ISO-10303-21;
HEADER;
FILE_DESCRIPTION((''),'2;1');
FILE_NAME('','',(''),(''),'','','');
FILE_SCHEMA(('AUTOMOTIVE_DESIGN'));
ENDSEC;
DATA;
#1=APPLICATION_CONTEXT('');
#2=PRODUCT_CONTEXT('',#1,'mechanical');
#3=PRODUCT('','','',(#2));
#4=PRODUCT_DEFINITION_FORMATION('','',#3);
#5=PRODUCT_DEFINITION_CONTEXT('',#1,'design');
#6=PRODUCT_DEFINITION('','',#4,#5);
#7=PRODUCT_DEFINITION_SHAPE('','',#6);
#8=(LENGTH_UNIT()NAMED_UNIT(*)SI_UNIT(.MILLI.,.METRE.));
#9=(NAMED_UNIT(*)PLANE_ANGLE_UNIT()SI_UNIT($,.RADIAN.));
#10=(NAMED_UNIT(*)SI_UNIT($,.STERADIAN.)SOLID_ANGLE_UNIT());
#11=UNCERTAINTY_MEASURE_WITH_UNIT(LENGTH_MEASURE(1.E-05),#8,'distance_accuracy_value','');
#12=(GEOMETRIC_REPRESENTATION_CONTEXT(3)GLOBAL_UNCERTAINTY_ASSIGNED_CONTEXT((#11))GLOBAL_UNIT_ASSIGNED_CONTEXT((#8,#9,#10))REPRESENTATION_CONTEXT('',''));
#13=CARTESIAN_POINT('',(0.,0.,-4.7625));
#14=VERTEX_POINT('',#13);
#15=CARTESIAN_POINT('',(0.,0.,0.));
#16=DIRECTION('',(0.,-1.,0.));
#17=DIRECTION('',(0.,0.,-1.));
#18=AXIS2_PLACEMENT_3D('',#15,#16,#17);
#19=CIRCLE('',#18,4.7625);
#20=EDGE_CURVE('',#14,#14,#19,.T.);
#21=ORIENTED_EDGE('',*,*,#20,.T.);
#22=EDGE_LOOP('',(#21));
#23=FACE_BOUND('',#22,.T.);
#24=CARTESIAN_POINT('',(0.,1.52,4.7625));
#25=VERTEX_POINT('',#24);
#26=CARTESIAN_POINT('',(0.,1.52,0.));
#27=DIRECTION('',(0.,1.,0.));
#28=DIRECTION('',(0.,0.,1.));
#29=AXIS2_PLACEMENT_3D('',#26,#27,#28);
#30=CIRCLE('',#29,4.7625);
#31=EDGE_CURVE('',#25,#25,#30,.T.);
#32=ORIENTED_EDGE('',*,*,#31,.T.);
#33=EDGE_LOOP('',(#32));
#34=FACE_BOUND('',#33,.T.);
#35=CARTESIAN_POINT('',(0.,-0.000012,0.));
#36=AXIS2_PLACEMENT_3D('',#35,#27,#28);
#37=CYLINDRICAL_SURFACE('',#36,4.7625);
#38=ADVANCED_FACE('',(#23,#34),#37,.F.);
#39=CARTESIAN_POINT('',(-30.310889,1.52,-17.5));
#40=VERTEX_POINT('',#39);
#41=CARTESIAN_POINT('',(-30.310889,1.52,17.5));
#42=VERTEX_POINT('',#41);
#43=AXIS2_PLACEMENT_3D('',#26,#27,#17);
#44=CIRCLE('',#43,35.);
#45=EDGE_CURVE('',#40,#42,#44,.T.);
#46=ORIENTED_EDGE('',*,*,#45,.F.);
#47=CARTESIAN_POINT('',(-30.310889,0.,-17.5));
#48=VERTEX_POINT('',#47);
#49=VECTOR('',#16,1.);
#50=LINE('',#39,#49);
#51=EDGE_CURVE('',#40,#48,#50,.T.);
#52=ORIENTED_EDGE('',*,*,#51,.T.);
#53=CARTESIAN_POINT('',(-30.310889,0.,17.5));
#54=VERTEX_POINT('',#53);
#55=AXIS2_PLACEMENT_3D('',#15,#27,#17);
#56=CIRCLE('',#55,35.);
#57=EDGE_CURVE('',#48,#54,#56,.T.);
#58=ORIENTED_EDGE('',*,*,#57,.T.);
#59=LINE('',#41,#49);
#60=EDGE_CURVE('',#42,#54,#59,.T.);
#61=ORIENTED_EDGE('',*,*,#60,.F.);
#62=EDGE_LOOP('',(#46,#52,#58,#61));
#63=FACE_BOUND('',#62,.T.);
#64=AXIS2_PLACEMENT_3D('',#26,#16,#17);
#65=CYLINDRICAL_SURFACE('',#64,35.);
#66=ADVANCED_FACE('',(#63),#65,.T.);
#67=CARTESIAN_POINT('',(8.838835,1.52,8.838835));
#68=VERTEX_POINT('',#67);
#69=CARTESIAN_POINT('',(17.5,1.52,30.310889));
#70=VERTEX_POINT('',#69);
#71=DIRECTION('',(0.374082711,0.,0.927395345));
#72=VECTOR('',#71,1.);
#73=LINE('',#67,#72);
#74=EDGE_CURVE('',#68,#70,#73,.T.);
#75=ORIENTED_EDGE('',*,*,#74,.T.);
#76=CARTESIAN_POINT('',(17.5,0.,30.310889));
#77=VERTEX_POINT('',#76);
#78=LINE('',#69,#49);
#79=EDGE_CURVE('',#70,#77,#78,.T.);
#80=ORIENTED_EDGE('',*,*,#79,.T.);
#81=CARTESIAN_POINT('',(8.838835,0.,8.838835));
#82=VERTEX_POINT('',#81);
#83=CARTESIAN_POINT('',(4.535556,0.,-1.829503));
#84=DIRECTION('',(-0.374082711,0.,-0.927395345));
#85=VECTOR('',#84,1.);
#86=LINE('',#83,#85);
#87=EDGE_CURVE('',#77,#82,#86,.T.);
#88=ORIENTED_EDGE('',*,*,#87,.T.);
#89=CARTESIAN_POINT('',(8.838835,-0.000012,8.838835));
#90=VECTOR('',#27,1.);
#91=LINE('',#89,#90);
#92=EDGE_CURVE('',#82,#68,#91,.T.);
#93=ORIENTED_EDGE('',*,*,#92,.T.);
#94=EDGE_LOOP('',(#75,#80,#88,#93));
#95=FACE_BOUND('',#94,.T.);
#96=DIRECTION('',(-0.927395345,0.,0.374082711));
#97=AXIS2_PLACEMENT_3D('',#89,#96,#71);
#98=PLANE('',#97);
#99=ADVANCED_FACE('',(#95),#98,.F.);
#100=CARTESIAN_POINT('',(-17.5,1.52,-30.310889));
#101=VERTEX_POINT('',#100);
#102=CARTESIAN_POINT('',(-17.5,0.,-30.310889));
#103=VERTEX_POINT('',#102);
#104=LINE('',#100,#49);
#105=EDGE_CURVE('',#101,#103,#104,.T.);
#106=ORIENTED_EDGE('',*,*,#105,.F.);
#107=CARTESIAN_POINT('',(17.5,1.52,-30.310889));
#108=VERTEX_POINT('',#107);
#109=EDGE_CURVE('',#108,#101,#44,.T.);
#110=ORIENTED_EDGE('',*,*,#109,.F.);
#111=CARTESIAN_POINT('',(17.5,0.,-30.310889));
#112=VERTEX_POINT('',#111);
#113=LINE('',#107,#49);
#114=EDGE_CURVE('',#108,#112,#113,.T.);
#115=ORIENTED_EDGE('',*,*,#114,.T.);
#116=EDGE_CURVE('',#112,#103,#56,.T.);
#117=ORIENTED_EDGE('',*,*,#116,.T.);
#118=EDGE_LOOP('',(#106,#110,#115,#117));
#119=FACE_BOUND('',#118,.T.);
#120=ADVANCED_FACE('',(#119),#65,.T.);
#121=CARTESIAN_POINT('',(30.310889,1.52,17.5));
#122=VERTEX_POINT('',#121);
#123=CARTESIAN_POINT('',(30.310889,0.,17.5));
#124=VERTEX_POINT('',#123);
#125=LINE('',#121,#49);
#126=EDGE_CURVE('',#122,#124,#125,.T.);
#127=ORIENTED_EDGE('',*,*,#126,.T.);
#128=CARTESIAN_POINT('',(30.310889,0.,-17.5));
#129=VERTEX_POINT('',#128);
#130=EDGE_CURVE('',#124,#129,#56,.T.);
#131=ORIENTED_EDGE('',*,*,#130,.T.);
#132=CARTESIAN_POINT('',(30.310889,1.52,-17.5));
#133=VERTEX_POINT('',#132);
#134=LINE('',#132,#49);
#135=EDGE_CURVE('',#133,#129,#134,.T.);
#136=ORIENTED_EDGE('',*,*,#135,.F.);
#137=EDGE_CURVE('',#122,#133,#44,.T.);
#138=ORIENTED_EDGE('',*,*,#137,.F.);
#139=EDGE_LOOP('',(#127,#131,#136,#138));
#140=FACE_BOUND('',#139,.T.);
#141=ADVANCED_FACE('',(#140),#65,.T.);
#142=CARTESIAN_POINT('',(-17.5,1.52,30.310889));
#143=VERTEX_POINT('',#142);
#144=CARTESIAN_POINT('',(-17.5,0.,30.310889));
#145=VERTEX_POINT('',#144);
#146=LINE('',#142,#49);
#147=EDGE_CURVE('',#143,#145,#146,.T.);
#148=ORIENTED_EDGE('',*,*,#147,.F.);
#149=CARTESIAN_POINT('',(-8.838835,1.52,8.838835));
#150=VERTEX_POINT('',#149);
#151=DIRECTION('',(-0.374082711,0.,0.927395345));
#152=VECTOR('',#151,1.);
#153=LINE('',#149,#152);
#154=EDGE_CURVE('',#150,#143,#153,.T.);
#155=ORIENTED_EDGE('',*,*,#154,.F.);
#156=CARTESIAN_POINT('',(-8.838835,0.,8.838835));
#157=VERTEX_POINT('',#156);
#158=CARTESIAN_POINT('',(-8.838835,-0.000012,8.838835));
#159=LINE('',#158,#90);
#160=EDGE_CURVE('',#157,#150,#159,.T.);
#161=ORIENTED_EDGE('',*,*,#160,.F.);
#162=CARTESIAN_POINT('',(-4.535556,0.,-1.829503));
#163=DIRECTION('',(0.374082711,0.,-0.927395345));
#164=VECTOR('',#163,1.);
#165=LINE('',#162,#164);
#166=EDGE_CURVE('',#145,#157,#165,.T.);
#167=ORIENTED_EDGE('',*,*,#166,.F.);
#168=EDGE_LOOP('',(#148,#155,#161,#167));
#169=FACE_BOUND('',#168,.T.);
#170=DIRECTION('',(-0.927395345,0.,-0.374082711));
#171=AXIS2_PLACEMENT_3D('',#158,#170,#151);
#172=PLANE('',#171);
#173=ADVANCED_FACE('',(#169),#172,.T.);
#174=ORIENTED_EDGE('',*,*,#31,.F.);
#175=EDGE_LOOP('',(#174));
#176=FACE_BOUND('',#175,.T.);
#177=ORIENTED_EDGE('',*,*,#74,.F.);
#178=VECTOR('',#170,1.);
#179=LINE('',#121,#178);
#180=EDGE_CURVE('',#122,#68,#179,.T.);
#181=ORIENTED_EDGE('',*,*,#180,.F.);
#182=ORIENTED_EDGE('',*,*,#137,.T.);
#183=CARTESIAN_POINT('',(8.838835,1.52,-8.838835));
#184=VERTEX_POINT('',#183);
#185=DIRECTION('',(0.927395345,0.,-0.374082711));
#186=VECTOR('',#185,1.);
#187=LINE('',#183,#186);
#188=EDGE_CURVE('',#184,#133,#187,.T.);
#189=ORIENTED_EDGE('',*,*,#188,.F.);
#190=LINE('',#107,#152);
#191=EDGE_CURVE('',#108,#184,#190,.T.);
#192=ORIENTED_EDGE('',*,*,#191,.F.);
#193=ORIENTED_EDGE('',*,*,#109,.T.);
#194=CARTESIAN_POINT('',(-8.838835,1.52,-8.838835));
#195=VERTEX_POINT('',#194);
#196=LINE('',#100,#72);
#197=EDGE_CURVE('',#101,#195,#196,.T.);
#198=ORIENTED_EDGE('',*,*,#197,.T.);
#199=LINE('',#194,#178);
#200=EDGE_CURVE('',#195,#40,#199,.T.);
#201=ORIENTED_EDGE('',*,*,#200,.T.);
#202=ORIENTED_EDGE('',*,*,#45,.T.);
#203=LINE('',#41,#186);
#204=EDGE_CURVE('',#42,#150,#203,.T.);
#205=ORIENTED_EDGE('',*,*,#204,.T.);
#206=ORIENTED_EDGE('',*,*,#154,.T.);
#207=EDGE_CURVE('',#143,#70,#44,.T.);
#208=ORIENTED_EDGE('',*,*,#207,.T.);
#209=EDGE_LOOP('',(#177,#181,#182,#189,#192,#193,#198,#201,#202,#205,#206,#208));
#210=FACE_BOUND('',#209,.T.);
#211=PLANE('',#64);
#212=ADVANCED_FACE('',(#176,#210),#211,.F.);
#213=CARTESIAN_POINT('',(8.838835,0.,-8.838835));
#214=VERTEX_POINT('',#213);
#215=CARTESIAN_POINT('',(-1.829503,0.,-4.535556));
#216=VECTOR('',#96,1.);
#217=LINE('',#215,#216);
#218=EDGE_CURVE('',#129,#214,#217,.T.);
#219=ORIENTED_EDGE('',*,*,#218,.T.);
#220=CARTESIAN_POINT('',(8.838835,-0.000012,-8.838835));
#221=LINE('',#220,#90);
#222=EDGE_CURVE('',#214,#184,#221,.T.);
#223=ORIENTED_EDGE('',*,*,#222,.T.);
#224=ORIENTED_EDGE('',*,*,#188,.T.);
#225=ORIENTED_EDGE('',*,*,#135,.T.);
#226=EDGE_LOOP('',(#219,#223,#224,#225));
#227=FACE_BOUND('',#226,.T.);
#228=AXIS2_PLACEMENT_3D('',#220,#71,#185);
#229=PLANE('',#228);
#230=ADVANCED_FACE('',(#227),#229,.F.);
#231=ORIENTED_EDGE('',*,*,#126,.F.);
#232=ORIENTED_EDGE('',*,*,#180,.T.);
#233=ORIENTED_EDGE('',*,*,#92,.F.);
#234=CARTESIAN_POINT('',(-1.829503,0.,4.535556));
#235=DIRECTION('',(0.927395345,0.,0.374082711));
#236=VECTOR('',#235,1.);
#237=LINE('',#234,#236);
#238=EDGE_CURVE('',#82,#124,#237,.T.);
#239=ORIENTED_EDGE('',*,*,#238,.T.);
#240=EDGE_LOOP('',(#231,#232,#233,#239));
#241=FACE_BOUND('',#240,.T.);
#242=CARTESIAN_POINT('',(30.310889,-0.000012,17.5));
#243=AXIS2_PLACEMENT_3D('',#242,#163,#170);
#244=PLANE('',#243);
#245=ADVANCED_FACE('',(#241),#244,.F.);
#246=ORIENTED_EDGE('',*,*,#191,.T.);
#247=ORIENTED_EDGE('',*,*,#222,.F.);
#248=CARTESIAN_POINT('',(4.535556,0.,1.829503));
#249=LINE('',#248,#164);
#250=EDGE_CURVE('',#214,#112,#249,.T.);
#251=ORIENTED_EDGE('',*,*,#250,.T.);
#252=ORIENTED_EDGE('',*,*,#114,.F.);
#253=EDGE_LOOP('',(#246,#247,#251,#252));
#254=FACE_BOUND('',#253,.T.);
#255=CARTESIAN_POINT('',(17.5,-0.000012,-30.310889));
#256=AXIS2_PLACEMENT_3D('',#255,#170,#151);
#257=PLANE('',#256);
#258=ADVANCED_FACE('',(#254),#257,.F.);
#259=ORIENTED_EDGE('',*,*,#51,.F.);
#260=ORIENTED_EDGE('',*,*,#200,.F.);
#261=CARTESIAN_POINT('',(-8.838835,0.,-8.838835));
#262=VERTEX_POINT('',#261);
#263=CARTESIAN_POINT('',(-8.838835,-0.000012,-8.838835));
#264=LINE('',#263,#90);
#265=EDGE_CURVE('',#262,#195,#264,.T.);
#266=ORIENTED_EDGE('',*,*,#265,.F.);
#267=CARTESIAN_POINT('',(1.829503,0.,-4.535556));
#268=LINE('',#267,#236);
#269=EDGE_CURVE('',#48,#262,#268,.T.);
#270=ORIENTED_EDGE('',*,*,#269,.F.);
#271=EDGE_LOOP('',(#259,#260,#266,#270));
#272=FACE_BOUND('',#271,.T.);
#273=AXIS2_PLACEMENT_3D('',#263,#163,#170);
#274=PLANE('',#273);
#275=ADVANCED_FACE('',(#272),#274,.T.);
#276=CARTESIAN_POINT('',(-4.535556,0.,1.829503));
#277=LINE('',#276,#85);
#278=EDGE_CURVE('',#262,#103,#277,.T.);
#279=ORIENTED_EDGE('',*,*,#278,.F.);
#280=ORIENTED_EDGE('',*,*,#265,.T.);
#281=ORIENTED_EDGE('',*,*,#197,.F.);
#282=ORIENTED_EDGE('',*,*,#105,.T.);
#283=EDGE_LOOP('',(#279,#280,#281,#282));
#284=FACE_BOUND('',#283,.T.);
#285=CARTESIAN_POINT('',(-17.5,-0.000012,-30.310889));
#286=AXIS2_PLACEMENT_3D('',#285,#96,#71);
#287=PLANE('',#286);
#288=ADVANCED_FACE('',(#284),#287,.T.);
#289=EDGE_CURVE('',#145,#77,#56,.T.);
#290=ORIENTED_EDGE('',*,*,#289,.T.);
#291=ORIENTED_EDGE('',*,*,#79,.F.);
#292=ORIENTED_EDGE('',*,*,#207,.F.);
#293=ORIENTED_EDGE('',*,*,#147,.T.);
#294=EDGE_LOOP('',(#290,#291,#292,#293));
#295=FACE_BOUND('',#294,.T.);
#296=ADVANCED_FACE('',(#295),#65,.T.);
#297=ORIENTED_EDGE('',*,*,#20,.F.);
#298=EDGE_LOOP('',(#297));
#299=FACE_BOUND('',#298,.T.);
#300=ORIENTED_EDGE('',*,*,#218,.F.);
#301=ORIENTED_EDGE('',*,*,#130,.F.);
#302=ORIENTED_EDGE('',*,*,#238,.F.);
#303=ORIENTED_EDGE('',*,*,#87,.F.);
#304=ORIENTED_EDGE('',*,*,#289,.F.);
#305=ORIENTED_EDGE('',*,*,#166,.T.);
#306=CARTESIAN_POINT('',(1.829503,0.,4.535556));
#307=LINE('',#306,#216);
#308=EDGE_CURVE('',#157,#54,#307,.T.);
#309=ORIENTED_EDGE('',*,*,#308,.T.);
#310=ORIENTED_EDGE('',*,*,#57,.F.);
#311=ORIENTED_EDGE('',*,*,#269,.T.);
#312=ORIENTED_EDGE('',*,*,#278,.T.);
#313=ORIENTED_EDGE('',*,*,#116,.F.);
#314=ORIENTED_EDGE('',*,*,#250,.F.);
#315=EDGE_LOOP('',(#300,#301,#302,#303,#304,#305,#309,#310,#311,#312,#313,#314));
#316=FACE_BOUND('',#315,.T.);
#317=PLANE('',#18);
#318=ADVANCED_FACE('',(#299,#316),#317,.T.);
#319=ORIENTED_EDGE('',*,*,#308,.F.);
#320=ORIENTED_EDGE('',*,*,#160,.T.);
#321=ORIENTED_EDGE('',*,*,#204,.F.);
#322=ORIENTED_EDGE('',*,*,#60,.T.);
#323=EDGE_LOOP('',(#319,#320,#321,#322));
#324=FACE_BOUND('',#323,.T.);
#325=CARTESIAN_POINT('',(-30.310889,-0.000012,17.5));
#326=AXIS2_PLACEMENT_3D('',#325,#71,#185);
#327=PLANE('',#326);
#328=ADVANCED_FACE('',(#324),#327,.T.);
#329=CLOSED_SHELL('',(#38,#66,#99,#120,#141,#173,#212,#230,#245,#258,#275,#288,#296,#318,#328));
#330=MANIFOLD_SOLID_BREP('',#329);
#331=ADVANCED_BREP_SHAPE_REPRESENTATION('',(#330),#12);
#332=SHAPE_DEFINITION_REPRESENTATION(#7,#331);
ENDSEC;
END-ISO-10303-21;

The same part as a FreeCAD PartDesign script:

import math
import FreeCAD as App
import Part
import Sketcher
from FreeCAD import Vector


def add_polygon(sketch, points):
    """Adds a closed chain of lines whose ends are joined by coincident constraints."""
    first, n = sketch.GeometryCount, len(points)
    for a, b in zip(points, points[1:] + points[:1]):
        sketch.addGeometry(Part.LineSegment(App.Vector(*a, 0), App.Vector(*b, 0)), False)
    for i in range(n):
        sketch.addConstraint(Sketcher.Constraint("Coincident", first + i, 2, first + (i + 1) % n, 1))

doc = App.newDocument("Part")
body = doc.addObject("PartDesign::Body", "Body")

sketch1 = body.newObject("Sketcher::SketchObject", "Sketch")
sketch1.AttachmentSupport = (doc.getObject("XZ_Plane"), [""])
sketch1.MapMode = "FlatFace"
sketch1.addGeometry([
    Part.LineSegment(Vector(-18, -30, 0), Vector(-18, -18, 0)),
    Part.LineSegment(Vector(-18, -18, 0), Vector(-30, -18, 0)),
    Part.ArcOfCircle(Part.Circle(Vector(0, 0, 0), Vector(0, 0, 1), 35), math.radians(150), math.radians(210)),
    Part.LineSegment(Vector(-30, 18, 0), Vector(-18, 18, 0)),
    Part.LineSegment(Vector(-18, 18, 0), Vector(-18, 30, 0)),
    Part.ArcOfCircle(Part.Circle(Vector(0, 0, 0), Vector(0, 0, 1), 35), math.radians(60), math.radians(120)),
    Part.LineSegment(Vector(18, 30, 0), Vector(18, 18, 0)),
    Part.LineSegment(Vector(18, 18, 0), Vector(30, 18, 0)),
    Part.ArcOfCircle(Part.Circle(Vector(0, 0, 0), Vector(0, 0, 1), 35), math.radians(-30), math.radians(30)),
    Part.LineSegment(Vector(30, -18, 0), Vector(18, -18, 0)),
    Part.LineSegment(Vector(18, -18, 0), Vector(18, -30, 0)),
    Part.ArcOfCircle(Part.Circle(Vector(0, 0, 0), Vector(0, 0, 1), 35), math.radians(-120), math.radians(-60)),
], False)
sketch1.addConstraint([
    Sketcher.Constraint("Coincident", 0, 2, 1, 1),
    Sketcher.Constraint("Coincident", 1, 2, 2, 2),
    Sketcher.Constraint("Coincident", 2, 1, 3, 1),
    Sketcher.Constraint("Coincident", 3, 2, 4, 1),
    Sketcher.Constraint("Coincident", 4, 2, 5, 2),
    Sketcher.Constraint("Coincident", 5, 1, 6, 1),
    Sketcher.Constraint("Coincident", 6, 2, 7, 1),
    Sketcher.Constraint("Coincident", 7, 2, 8, 2),
    Sketcher.Constraint("Coincident", 8, 1, 9, 1),
    Sketcher.Constraint("Coincident", 9, 2, 10, 1),
    Sketcher.Constraint("Coincident", 10, 2, 11, 2),
    Sketcher.Constraint("Coincident", 11, 1, 0, 1),
    Sketcher.Constraint("Vertical", 0),
    Sketcher.Constraint("Horizontal", 1),
    Sketcher.Constraint("Horizontal", 3),
    Sketcher.Constraint("Vertical", 4),
    Sketcher.Constraint("Vertical", 6),
    Sketcher.Constraint("Horizontal", 7),
    Sketcher.Constraint("Horizontal", 9),
    Sketcher.Constraint("Vertical", 10),
    Sketcher.Constraint("Coincident", 2, 3, -1, 1),
    Sketcher.Constraint("Coincident", 5, 3, -1, 1),
    Sketcher.Constraint("Coincident", 8, 3, -1, 1),
    Sketcher.Constraint("Coincident", 11, 3, -1, 1),
    Sketcher.Constraint("Equal", 2, 5),
    Sketcher.Constraint("Equal", 5, 8),
    Sketcher.Constraint("Equal", 8, 11),
    Sketcher.Constraint("Symmetric", 0, 2, 6, 2, -1, 1),
    Sketcher.Constraint("Symmetric", 3, 2, 9, 2, -1, 1),
    Sketcher.Constraint("Symmetric", 3, 2, 6, 2, -2),
    Sketcher.Constraint("Equal", 9, 0),
    Sketcher.Constraint("Radius", 2, 35.0),
    Sketcher.Constraint("DistanceY", 1, 2, 2, 1, 35.0),
])
pad1 = body.newObject("PartDesign::Pad", "Pad")
pad1.Profile = sketch1
pad1.Length = 1.52
pad1.Reversed = True

sketch2 = body.newObject("Sketcher::SketchObject", "Sketch001")
sketch2.AttachmentSupport = (doc.getObject("XZ_Plane"), [""])
sketch2.MapMode = "FlatFace"
sketch2.addGeometry(Part.Circle(Vector(0, 0, 0), Vector(0, 0, 1), 4.8), False)
add_polygon(sketch2, [(-17.5, -30.3), (-30.3, -17.5), (-8.8, -8.8)])
add_polygon(sketch2, [(30.3, -17.5), (17.5, -30.3), (8.8, -8.8)])
add_polygon(sketch2, [(17.5, 30.3), (30.3, 17.5), (8.8, 8.8)])
add_polygon(sketch2, [(-30.3, 17.5), (-17.5, 30.3), (-8.8, 8.8)])
sketch2.addConstraint([
    Sketcher.Constraint("Coincident", 0, 3, -1, 1),
    Sketcher.Constraint("Symmetric", 1, 2, 7, 2, -1, 1),
    Sketcher.Constraint("Symmetric", 2, 2, 8, 2, -1, 1),
    Sketcher.Constraint("Symmetric", 3, 2, 9, 2, -1, 1),
    Sketcher.Constraint("Symmetric", 4, 2, 10, 2, -1, 1),
    Sketcher.Constraint("Symmetric", 5, 2, 11, 2, -1, 1),
    Sketcher.Constraint("Symmetric", 6, 2, 12, 2, -1, 1),
    Sketcher.Constraint("Symmetric", 3, 2, 4, 2, -2),
    Sketcher.Constraint("Symmetric", 2, 2, 5, 2, -2),
    Sketcher.Constraint("Symmetric", 1, 2, 6, 2, -2),
    Sketcher.Constraint("Perpendicular", 1, 4),
    Sketcher.Constraint("Perpendicular", 2, 5),
    Sketcher.Constraint("Diameter", 0, 9.525),
    Sketcher.Constraint("DistanceX", 3, 2, 4, 2, 35.0),
    Sketcher.Constraint("DistanceY", 6, 2, 7, 2, 35.0),
    Sketcher.Constraint("DistanceX", 1, 2, -1, 1, 30.310889),
    Sketcher.Constraint("DistanceX", 2, 2, 5, 2, 17.67767),
])
pocket1 = body.newObject("PartDesign::Pocket", "Pocket")
pocket1.Profile = sketch2
pocket1.Type = "ThroughAll"
pocket1.Midplane = True

doc.recompute()
